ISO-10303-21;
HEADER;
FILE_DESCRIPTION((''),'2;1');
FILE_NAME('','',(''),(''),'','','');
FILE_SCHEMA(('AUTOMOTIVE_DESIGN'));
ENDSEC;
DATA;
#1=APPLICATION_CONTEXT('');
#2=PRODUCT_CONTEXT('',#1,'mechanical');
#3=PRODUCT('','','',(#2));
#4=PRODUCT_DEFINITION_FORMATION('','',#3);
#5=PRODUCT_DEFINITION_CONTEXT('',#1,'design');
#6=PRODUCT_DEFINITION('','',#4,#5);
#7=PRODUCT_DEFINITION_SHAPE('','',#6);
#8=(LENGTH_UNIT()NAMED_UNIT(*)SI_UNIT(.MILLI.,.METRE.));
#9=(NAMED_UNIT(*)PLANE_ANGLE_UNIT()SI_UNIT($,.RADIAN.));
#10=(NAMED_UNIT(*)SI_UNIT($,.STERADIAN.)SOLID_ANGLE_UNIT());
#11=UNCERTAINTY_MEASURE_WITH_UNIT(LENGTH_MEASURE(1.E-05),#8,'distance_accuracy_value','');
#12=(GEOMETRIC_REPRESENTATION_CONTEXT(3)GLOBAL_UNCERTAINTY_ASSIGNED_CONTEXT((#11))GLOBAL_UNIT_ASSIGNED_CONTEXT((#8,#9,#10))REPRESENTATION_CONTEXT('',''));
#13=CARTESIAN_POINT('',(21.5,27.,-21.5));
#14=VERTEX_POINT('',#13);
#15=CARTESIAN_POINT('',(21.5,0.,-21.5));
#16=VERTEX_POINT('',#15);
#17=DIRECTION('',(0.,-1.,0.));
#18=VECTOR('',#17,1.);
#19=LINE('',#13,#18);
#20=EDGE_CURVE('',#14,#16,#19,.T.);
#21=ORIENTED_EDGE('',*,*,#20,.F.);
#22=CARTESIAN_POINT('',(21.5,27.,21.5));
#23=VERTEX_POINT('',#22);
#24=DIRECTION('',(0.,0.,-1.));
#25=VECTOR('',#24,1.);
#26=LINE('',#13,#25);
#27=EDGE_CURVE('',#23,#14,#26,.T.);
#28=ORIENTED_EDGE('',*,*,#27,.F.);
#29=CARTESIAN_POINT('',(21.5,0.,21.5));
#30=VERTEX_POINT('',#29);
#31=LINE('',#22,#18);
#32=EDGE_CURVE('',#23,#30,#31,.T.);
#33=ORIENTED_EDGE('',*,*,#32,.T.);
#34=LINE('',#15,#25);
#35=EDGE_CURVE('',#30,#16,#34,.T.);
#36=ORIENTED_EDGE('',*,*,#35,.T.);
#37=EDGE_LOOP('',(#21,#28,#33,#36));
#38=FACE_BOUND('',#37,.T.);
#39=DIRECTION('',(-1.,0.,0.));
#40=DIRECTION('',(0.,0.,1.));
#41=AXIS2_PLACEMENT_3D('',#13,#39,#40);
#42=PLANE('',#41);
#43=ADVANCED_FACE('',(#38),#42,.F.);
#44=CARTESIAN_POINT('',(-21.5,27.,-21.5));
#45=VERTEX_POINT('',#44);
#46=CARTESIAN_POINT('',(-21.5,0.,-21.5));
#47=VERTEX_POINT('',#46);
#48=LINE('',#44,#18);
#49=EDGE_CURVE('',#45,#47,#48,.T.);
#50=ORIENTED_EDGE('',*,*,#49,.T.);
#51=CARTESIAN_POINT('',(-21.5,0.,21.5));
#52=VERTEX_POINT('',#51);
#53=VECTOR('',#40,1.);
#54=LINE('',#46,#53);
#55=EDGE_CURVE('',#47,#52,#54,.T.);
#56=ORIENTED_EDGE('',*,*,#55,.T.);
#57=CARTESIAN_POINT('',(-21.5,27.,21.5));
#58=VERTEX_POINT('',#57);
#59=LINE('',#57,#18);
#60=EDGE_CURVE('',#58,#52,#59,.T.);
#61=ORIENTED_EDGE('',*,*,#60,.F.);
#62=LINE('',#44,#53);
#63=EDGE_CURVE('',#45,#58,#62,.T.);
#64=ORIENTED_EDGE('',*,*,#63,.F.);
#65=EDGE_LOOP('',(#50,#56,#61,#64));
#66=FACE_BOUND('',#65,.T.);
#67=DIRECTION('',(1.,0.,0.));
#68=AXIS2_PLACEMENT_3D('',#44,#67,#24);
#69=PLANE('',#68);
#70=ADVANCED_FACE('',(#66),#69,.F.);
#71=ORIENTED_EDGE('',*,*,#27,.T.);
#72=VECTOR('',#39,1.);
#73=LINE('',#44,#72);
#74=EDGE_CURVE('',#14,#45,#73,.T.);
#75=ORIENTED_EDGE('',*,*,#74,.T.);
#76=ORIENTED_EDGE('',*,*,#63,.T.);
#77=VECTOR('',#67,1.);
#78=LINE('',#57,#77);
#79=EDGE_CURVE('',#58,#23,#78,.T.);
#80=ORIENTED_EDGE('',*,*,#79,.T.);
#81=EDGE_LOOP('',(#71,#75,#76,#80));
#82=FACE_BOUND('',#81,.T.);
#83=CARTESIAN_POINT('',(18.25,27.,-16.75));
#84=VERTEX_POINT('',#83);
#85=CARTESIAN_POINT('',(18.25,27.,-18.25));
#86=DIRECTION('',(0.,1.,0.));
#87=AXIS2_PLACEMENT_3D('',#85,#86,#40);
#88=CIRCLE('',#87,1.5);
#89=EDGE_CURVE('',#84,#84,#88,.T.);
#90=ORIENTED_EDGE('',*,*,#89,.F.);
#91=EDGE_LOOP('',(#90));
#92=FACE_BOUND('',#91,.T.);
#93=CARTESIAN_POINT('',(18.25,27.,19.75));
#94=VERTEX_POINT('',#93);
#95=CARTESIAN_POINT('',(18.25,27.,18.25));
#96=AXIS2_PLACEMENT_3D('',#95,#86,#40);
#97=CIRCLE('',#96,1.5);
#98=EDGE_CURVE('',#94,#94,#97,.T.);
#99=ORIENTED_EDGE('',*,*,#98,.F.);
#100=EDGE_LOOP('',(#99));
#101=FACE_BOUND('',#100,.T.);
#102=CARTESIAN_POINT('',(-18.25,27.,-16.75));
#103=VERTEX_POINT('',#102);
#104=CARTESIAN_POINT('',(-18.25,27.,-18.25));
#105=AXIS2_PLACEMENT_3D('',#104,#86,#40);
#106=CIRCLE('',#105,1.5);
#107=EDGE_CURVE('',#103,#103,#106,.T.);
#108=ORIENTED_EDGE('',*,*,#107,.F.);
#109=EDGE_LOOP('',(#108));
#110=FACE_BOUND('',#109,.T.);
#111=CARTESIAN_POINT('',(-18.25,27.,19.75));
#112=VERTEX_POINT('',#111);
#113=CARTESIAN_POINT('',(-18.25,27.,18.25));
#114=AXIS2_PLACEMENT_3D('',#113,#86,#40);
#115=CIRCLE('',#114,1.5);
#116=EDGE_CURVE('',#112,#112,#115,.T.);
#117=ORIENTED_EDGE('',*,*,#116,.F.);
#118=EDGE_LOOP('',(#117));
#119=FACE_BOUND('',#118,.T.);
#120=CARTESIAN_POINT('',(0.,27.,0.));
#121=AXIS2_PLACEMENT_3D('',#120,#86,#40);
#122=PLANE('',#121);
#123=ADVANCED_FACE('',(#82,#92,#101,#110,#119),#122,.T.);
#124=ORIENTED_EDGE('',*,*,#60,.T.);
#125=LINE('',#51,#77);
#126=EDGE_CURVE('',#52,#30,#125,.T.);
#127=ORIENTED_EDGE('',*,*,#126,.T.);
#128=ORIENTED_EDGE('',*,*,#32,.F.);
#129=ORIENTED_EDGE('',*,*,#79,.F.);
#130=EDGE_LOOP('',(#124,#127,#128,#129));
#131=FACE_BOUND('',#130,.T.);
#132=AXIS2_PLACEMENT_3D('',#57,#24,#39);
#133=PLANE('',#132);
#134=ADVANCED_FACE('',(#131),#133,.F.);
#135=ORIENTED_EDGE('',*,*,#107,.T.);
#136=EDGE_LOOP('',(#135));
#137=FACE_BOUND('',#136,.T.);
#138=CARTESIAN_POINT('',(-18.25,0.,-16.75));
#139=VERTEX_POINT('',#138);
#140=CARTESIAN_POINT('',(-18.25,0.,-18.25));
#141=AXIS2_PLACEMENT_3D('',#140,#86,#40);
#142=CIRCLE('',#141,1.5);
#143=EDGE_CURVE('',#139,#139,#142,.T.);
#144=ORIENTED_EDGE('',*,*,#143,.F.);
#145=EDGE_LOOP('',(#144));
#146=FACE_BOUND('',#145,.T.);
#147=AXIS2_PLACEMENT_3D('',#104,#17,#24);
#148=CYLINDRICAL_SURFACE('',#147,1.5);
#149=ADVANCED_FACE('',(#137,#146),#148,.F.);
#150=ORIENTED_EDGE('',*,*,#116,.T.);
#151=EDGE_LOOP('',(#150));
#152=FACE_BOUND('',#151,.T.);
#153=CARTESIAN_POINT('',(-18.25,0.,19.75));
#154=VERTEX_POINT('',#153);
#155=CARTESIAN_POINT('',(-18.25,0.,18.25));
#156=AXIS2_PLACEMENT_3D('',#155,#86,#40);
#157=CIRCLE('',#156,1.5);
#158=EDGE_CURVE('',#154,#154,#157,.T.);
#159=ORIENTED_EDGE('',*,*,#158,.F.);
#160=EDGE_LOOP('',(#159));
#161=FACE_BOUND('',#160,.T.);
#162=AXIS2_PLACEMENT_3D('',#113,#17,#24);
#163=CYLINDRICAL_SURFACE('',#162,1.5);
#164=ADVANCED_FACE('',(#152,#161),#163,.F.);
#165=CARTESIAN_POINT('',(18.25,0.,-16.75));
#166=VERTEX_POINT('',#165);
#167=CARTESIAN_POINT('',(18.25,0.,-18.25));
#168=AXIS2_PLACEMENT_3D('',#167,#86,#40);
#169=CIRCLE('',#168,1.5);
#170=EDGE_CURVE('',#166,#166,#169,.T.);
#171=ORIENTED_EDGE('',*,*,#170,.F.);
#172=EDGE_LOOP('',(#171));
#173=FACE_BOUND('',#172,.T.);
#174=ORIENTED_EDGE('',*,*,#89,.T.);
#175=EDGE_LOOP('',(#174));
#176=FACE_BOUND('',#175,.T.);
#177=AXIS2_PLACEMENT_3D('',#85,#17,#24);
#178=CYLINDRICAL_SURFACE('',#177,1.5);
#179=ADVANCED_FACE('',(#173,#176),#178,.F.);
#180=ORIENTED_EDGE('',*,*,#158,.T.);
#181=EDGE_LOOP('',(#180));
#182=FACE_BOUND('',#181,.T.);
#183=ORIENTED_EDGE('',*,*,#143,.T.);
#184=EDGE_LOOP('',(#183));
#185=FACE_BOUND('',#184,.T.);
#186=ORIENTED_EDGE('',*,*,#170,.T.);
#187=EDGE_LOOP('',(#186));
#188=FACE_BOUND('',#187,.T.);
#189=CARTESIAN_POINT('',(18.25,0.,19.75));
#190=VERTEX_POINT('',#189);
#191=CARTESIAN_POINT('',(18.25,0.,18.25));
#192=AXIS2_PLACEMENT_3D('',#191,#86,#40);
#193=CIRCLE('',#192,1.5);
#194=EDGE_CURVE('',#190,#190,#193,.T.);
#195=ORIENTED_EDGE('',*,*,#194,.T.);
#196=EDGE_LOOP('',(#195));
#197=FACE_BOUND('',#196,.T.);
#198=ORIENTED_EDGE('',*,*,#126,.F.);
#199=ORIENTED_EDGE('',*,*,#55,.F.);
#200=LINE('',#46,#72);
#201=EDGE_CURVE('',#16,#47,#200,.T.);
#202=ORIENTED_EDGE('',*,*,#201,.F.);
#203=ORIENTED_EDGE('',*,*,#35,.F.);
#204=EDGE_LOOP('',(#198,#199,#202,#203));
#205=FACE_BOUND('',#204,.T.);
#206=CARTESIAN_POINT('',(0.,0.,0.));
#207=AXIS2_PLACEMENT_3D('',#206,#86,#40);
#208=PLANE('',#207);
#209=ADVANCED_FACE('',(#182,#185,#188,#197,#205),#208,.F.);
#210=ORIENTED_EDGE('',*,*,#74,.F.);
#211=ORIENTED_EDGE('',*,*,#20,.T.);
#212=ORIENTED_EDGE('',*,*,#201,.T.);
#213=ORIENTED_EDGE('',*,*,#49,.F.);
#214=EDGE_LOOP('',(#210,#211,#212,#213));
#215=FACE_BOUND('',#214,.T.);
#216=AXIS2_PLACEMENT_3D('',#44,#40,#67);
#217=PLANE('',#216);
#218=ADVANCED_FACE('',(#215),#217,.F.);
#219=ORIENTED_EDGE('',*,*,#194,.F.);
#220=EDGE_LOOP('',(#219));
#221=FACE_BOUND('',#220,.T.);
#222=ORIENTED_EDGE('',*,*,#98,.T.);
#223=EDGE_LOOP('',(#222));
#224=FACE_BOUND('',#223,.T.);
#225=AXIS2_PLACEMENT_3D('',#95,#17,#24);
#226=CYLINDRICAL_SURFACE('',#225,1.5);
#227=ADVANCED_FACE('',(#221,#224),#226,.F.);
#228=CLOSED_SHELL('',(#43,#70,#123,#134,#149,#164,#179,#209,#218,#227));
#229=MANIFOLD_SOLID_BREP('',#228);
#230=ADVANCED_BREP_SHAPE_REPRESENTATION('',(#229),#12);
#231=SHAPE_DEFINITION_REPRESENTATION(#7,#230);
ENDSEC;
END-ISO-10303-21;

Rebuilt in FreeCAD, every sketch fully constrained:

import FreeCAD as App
import Part
import Sketcher
from FreeCAD import Vector
Q = App.Units.Quantity

doc = App.newDocument("Part")
body = doc.addObject("PartDesign::Body", "Body")

sketch1 = body.newObject("Sketcher::SketchObject", "Sketch")
sketch1.AttachmentSupport = (doc.getObject("XZ_Plane"), [""])
sketch1.MapMode = "FlatFace"
sketch1.addGeometry([
    Part.LineSegment(Vector(-21.5, -21.5, 0), Vector(-21.5, 21.5, 0)),
    Part.LineSegment(Vector(-21.5, 21.5, 0), Vector(21.5, 21.5, 0)),
    Part.LineSegment(Vector(21.5, 21.5, 0), Vector(21.5, -21.5, 0)),
    Part.LineSegment(Vector(21.5, -21.5, 0), Vector(-21.5, -21.5, 0)),
    Part.Circle(Vector(-18.2, 18.2, 0), Vector(0, 0, 1), 1.5),
    Part.Circle(Vector(18.2, 18.2, 0), Vector(0, 0, 1), 1.5),
    Part.Circle(Vector(-18.2, -18.2, 0), Vector(0, 0, 1), 1.5),
    Part.Circle(Vector(18.2, -18.2, 0), Vector(0, 0, 1), 1.5),
], False)
sketch1.addConstraint([
    Sketcher.Constraint("Coincident", 0, 2, 1, 1),
    Sketcher.Constraint("Coincident", 1, 2, 2, 1),
    Sketcher.Constraint("Coincident", 2, 2, 3, 1),
    Sketcher.Constraint("Coincident", 3, 2, 0, 1),
    Sketcher.Constraint("Vertical", 0),
    Sketcher.Constraint("Horizontal", 1),
    Sketcher.Constraint("Vertical", 2),
    Sketcher.Constraint("Horizontal", 3),
    Sketcher.Constraint("Equal", 4, 5),
    Sketcher.Constraint("Equal", 5, 6),
    Sketcher.Constraint("Equal", 6, 7),
    Sketcher.Constraint("Symmetric", 5, 3, 6, 3, -1, 1),
    Sketcher.Constraint("Symmetric", 4, 3, 7, 3, -1, 1),
    Sketcher.Constraint("Symmetric", 0, 2, 2, 2, -1, 1),
    Sketcher.Constraint("Symmetric", 4, 3, 5, 3, -2),
    Sketcher.Constraint("Equal", 3, 0),
    Sketcher.Constraint("Diameter", 4, Q("3 mm")),
    Sketcher.Constraint("DistanceX", 1, 1, 1, 2, Q("43 mm")),
    Sketcher.Constraint("DistanceX", 4, 3, 5, 3, Q("36.5 mm")),
    Sketcher.Constraint("DistanceY", 6, 3, 4, 3, Q("36.5 mm")),
])
pad1 = body.newObject("PartDesign::Pad", "Pad")
pad1.Profile = sketch1
pad1.Length = 27
pad1.Reversed = True

doc.recompute()
